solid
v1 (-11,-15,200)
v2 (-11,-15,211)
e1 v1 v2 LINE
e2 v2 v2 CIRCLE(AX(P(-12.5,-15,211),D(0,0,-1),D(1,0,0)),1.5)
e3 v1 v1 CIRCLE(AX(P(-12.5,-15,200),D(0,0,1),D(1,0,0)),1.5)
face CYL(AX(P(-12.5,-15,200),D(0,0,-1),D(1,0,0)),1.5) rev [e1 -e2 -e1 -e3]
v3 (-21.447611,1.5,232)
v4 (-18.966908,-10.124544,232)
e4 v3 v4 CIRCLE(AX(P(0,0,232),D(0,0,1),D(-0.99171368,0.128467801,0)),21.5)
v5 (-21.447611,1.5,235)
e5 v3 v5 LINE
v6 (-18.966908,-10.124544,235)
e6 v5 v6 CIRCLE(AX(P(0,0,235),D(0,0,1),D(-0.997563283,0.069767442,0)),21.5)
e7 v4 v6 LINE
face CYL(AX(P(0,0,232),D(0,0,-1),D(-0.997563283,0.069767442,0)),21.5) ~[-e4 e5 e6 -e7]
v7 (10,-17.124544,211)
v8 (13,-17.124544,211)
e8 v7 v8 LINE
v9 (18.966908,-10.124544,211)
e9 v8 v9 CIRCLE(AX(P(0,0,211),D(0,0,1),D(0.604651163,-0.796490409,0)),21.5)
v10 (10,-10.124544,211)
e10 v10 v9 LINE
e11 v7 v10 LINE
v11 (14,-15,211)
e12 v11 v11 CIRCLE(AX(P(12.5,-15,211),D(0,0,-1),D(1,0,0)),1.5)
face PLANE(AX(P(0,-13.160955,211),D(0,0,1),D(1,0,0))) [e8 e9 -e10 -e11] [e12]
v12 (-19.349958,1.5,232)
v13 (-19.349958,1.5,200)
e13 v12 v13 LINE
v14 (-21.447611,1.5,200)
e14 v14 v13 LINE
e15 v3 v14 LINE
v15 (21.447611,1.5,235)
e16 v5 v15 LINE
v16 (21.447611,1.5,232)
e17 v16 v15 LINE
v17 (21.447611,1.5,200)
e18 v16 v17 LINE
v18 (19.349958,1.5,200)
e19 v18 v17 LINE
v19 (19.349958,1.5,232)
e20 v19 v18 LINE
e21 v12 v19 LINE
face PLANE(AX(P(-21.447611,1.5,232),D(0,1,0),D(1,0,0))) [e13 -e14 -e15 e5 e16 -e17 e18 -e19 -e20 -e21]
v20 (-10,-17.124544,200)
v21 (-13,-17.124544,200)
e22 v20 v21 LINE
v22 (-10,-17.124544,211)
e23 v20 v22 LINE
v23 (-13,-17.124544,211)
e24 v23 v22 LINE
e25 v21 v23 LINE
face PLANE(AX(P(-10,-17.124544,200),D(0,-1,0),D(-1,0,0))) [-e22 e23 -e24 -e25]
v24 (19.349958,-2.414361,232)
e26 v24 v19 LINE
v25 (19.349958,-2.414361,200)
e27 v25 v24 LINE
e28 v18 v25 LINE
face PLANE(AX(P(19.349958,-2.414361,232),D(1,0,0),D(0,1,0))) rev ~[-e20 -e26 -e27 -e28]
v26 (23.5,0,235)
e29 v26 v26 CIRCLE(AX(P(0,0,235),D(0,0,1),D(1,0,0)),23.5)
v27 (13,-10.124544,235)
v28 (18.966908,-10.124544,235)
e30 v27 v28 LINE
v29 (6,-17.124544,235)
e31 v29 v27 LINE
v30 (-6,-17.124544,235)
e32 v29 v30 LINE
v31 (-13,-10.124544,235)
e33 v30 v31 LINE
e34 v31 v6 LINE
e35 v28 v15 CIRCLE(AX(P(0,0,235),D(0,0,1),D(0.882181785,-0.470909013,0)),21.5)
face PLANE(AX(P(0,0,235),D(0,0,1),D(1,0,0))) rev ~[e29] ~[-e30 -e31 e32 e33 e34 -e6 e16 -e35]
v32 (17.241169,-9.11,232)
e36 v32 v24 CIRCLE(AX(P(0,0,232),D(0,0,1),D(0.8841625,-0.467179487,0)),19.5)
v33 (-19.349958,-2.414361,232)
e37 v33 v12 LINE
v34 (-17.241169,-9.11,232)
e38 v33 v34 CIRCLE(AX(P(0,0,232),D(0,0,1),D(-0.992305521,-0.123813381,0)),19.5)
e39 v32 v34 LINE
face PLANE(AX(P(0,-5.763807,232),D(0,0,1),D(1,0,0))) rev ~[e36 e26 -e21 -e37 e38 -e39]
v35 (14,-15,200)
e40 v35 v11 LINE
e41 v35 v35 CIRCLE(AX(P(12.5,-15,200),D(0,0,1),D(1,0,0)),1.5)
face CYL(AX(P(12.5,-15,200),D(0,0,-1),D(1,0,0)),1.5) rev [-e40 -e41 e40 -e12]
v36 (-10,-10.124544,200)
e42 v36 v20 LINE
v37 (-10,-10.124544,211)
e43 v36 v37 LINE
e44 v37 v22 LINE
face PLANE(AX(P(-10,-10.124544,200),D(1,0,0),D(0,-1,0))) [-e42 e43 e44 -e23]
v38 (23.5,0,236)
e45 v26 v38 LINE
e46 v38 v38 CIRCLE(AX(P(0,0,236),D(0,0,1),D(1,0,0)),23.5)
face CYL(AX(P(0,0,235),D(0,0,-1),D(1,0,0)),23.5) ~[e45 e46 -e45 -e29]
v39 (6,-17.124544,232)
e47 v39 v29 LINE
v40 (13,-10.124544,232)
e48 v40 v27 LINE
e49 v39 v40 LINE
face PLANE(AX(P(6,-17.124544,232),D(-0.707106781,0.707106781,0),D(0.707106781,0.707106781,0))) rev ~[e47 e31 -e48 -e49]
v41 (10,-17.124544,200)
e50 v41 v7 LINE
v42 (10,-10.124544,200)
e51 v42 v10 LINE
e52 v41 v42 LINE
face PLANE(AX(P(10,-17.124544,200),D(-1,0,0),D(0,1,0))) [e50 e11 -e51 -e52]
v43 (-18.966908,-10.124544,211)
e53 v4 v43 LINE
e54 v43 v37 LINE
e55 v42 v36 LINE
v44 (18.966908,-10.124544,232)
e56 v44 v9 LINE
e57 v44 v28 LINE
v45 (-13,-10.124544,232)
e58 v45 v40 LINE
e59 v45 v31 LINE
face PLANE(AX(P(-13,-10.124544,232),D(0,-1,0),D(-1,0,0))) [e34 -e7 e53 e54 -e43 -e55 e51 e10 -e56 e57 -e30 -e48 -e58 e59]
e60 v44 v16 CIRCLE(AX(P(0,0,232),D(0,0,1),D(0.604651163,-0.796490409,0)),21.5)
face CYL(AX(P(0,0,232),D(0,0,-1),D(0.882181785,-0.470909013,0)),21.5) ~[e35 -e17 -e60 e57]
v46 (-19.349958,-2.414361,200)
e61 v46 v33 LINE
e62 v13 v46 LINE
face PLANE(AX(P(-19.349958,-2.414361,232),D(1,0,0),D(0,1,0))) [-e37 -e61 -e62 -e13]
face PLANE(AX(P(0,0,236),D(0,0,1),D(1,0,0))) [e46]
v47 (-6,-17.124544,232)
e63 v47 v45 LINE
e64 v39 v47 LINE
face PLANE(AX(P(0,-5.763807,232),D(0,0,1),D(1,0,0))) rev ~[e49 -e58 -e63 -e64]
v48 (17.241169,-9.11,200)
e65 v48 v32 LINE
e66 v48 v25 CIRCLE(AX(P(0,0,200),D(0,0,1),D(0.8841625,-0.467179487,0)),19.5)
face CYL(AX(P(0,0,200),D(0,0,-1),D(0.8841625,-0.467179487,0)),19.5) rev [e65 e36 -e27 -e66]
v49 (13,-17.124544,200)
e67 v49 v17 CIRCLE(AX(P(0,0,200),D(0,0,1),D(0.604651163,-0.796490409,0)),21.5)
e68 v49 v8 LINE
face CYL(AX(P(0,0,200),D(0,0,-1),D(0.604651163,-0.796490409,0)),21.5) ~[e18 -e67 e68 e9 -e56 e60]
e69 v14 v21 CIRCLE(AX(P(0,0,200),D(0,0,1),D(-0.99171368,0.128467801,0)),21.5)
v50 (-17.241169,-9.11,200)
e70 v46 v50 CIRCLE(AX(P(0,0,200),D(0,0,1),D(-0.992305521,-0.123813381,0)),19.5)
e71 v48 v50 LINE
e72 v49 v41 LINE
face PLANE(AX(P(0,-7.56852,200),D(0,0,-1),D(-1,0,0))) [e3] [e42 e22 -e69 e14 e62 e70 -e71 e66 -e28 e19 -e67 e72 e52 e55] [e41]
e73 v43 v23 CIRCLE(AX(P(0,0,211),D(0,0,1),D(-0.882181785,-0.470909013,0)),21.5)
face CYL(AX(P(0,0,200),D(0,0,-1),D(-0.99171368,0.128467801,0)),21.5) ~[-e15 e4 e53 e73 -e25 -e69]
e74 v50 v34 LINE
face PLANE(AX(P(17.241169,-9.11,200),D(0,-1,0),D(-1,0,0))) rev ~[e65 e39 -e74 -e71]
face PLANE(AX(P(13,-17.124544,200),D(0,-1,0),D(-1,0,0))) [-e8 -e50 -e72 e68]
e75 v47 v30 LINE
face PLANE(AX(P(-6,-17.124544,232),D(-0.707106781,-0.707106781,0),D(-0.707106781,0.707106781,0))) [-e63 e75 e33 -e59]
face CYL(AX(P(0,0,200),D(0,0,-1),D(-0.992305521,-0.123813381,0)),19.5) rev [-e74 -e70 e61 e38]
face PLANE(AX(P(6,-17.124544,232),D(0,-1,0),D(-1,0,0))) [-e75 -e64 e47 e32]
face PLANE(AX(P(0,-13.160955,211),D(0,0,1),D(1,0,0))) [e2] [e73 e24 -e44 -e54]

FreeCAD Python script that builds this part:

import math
import FreeCAD as App
import Part
import Sketcher
from FreeCAD import Vector
Q = App.Units.Quantity

doc = App.newDocument("Part")
params = doc.addObject("Spreadsheet::Sheet", "Params")
for row, (alias, value) in enumerate([
    ("sketch1_diameter", "3 mm"),
    ("sketch1_radius", "21.5 mm"),
    ("sketch1_radius2", "19.5 mm"),
    ("sketch1_width", "3 mm"),
    ("sketch1_width2", "20 mm"),
    ("pad1_length", "32 mm"),
    ("sketch2_radius", "21.5 mm"),
    ("sketch2_width", "26 mm"),
    ("pocket1_length", "21 mm"),
    ("sketch3_height", "8 mm"),
    ("pocket2_length", "50 mm"),
    ("sketch4_radius", "21.5 mm"),
    ("sketch4_width", "12 mm"),
    ("pad2_length", "3 mm"),
    ("sketch5_height", "8 mm"),
    ("pocket3_length", "32 mm"),
    ("sketch6_diameter", "47 mm"),
    ("pad3_length", "1 mm"),
], start=1):
    params.set(f"A{row}", alias)
    params.set(f"B{row}", "=" + value)
    params.setAlias(f"B{row}", alias)

body = doc.addObject("PartDesign::Body", "Body")

sketch1 = body.newObject("Sketcher::SketchObject", "Sketch")
sketch1.AttachmentSupport = (doc.getObject("XY_Plane"), [""])
sketch1.MapMode = "FlatFace"
sketch1.addGeometry([
    Part.LineSegment(Vector(-17, 2, 0), Vector(-21.321844, 2.762058, 0)),
    Part.ArcOfCircle(Part.Circle(Vector(0, 0, 0), Vector(0, 0, 1), 21.5), math.radians(172.618939), math.radians(232.796256)),
    Part.LineSegment(Vector(-13, -17.124544, 0), Vector(-10, -17.124544, 0)),
    Part.LineSegment(Vector(-10, -17.124544, 0), Vector(-10, -10.124544, 0)),
    Part.LineSegment(Vector(-10, -10.124544, 0), Vector(10, -10.124544, 0)),
    Part.LineSegment(Vector(10, -10.124544, 0), Vector(10, -17.124544, 0)),
    Part.LineSegment(Vector(10, -17.124544, 0), Vector(13, -17.124544, 0)),
    Part.ArcOfCircle(Part.Circle(Vector(0, 0, 0), Vector(0, 0, 1), 21.5), math.radians(-52.796256), math.radians(7.381061)),
    Part.LineSegment(Vector(21.321844, 2.762058, 0), Vector(17, 2, 0)),
    Part.LineSegment(Vector(17, 2, 0), Vector(17, 1, 0)),
    Part.LineSegment(Vector(17, 1, 0), Vector(19, 1, 0)),
    Part.LineSegment(Vector(19, 1, 0), Vector(19, -1, 0)),
    Part.LineSegment(Vector(19, -1, 0), Vector(17, -1, 0)),
    Part.LineSegment(Vector(17, -1, 0), Vector(17, -2, 0)),
    Part.LineSegment(Vector(17, -2, 0), Vector(19.349958, -2.414361, 0)),
    Part.ArcOfCircle(Part.Circle(Vector(0, 0, 0), Vector(0, 0, 1), 19.5), math.radians(-27.851366), math.radians(-7.112235)),
    Part.LineSegment(Vector(17.241169, -9.11, 0), Vector(-17.241169, -9.11, 0)),
    Part.ArcOfCircle(Part.Circle(Vector(0, 0, 0), Vector(0, 0, 1), 19.5), math.radians(-172.887765), math.radians(-152.148634)),
    Part.LineSegment(Vector(-19.349958, -2.414361, 0), Vector(-17, -2, 0)),
    Part.LineSegment(Vector(-17, -2, 0), Vector(-17, -1, 0)),
    Part.LineSegment(Vector(-17, -1, 0), Vector(-19, -1, 0)),
    Part.LineSegment(Vector(-19, -1, 0), Vector(-19, 1, 0)),
    Part.LineSegment(Vector(-19, 1, 0), Vector(-17, 1, 0)),
    Part.LineSegment(Vector(-17, 1, 0), Vector(-17, 2, 0)),
    Part.Circle(Vector(12.5, -15, 0), Vector(0, 0, 1), 1.5),
    Part.Circle(Vector(-12.5, -15, 0), Vector(0, 0, 1), 1.5),
], False)
sketch1.addConstraint([
    Sketcher.Constraint("Coincident", 0, 2, 1, 1),
    Sketcher.Constraint("Coincident", 1, 2, 2, 1),
    Sketcher.Constraint("Coincident", 2, 2, 3, 1),
    Sketcher.Constraint("Coincident", 3, 2, 4, 1),
    Sketcher.Constraint("Coincident", 4, 2, 5, 1),
    Sketcher.Constraint("Coincident", 5, 2, 6, 1),
    Sketcher.Constraint("Coincident", 6, 2, 7, 1),
    Sketcher.Constraint("Coincident", 7, 2, 8, 1),
    Sketcher.Constraint("Coincident", 8, 2, 9, 1),
    Sketcher.Constraint("Coincident", 9, 2, 10, 1),
    Sketcher.Constraint("Coincident", 10, 2, 11, 1),
    Sketcher.Constraint("Coincident", 11, 2, 12, 1),
    Sketcher.Constraint("Coincident", 12, 2, 13, 1),
    Sketcher.Constraint("Coincident", 13, 2, 14, 1),
    Sketcher.Constraint("Coincident", 14, 2, 15, 2),
    Sketcher.Constraint("Coincident", 15, 1, 16, 1),
    Sketcher.Constraint("Coincident", 16, 2, 17, 2),
    Sketcher.Constraint("Coincident", 17, 1, 18, 1),
    Sketcher.Constraint("Coincident", 18, 2, 19, 1),
    Sketcher.Constraint("Coincident", 19, 2, 20, 1),
    Sketcher.Constraint("Coincident", 20, 2, 21, 1),
    Sketcher.Constraint("Coincident", 21, 2, 22, 1),
    Sketcher.Constraint("Coincident", 22, 2, 23, 1),
    Sketcher.Constraint("Coincident", 23, 2, 0, 1),
    Sketcher.Constraint("Horizontal", 2),
    Sketcher.Constraint("Vertical", 3),
    Sketcher.Constraint("Horizontal", 4),
    Sketcher.Constraint("Vertical", 5),
    Sketcher.Constraint("Horizontal", 6),
    Sketcher.Constraint("Vertical", 9),
    Sketcher.Constraint("Horizontal", 10),
    Sketcher.Constraint("Vertical", 11),
    Sketcher.Constraint("Horizontal", 12),
    Sketcher.Constraint("Vertical", 13),
    Sketcher.Constraint("Horizontal", 16),
    Sketcher.Constraint("Vertical", 19),
    Sketcher.Constraint("Horizontal", 20),
    Sketcher.Constraint("Vertical", 21),
    Sketcher.Constraint("Horizontal", 22),
    Sketcher.Constraint("Vertical", 23),
    Sketcher.Constraint("Coincident", 1, 3, -1, 1),
    Sketcher.Constraint("Coincident", 7, 3, -1, 1),
    Sketcher.Constraint("Coincident", 15, 3, -1, 1),
    Sketcher.Constraint("Coincident", 17, 3, -1, 1),
    Sketcher.Constraint("Equal", 1, 7),
    Sketcher.Constraint("Equal", 15, 17),
    Sketcher.Constraint("Equal", 24, 25),
    Sketcher.Constraint("Symmetric", 8, 2, 18, 2, -1, 1),
    Sketcher.Constraint("Symmetric", 10, 2, 20, 2, -1, 1),
    Sketcher.Constraint("Symmetric", 12, 2, 22, 2, -1, 1),
    Sketcher.Constraint("Symmetric", 24, 3, 25, 3, -2),
    Sketcher.Constraint("Symmetric", 2, 2, 5, 2, -2),
    Sketcher.Constraint("Symmetric", 13, 2, 18, 2, -2),
    Sketcher.Constraint("Parallel", 0, 14),
    Sketcher.Constraint("Parallel", 8, 18),
    Sketcher.Constraint("Horizontal", 0, 2, 7, 2),
    Sketcher.Constraint("Horizontal", 14, 2, 17, 1),
    Sketcher.Constraint("Horizontal", 12, 2, 19, 2),
    Sketcher.Constraint("Equal", 22, 11),
    Sketcher.Constraint("Diameter", 24, 3.0),
    Sketcher.Constraint("Radius", 1, 21.5),
    Sketcher.Constraint("Radius", 15, 19.5),
    Sketcher.Constraint("DistanceX", 2, 1, 2, 2, 3.0),
    Sketcher.Constraint("DistanceX", 4, 1, 4, 2, 20.0),
    Sketcher.Constraint("DistanceX", 10, 1, 10, 2, 2.0),
    Sketcher.Constraint("DistanceY", 3, 1, 3, 2, 7.0),
    Sketcher.Constraint("DistanceY", 9, 2, 9, 1, 1.0),
    Sketcher.Constraint("Angle", 0, Q("170 deg")),
    Sketcher.Constraint("DistanceY", 24, 3, -1, 1, 15.0),
    Sketcher.Constraint("DistanceX", -1, 1, 8, 2, 17.0),
    Sketcher.Constraint("DistanceX", 25, 3, 24, 3, 25.0),
    Sketcher.Constraint("DistanceY", 15, 1, -1, 1, 9.11),
])
sketch1.setExpression("Constraints[59]", "Params.sketch1_diameter")
sketch1.setExpression("Constraints[60]", "Params.sketch1_radius")
sketch1.setExpression("Constraints[61]", "Params.sketch1_radius2")
sketch1.setExpression("Constraints[62]", "Params.sketch1_width")
sketch1.setExpression("Constraints[63]", "Params.sketch1_width2")
pad1 = body.newObject("PartDesign::Pad", "Pad")
pad1.Profile = sketch1
pad1.setExpression("Length", "Params.pad1_length")

sketch2 = body.newObject("Sketcher::SketchObject", "Sketch001")
sketch2.AttachmentSupport = (doc.getObject("XY_Plane"), [""])
sketch2.MapMode = "FlatFace"
sketch2.AttachmentOffset = App.Placement(Vector(0, 0, 32), App.Rotation())
sketch2.addGeometry([
    Part.ArcOfCircle(Part.Circle(Vector(0, 0, 0), Vector(0, 0, 1), 21.5), math.radians(-151.906681), math.radians(-127.203744)),
    Part.LineSegment(Vector(-13, -17.124544, 0), Vector(13, -17.124544, 0)),
    Part.ArcOfCircle(Part.Circle(Vector(0, 0, 0), Vector(0, 0, 1), 21.5), math.radians(-52.796256), math.radians(-28.093319)),
    Part.LineSegment(Vector(18.966908, -10.124544, 0), Vector(-18.966908, -10.124544, 0)),
], False)
sketch2.addConstraint([
    Sketcher.Constraint("Coincident", 0, 2, 1, 1),
    Sketcher.Constraint("Coincident", 1, 2, 2, 1),
    Sketcher.Constraint("Coincident", 2, 2, 3, 1),
    Sketcher.Constraint("Coincident", 3, 2, 0, 1),
    Sketcher.Constraint("Horizontal", 1),
    Sketcher.Constraint("Horizontal", 3),
    Sketcher.Constraint("Coincident", 0, 3, -1, 1),
    Sketcher.Constraint("Coincident", 2, 3, -1, 1),
    Sketcher.Constraint("Equal", 0, 2),
    Sketcher.Constraint("Radius", 0, 21.5),
    Sketcher.Constraint("DistanceX", 1, 1, 1, 2, 26.0),
    Sketcher.Constraint("DistanceY", 1, 2, 2, 2, 7.0),
])
sketch2.setExpression("Constraints[9]", "Params.sketch2_radius")
sketch2.setExpression("Constraints[10]", "Params.sketch2_width")
pocket1 = body.newObject("PartDesign::Pocket", "Pocket")
pocket1.Profile = sketch2
pocket1.setExpression("Length", "Params.pocket1_length")

sketch3 = body.newObject("Sketcher::SketchObject", "Sketch002")
sketch3.AttachmentSupport = (doc.getObject("XY_Plane"), [""])
sketch3.MapMode = "FlatFace"
sketch3.AttachmentOffset = App.Placement(Vector(0, 0, 32), App.Rotation())
sketch3.addGeometry([
    Part.LineSegment(Vector(-19.349958, 5.585639, 0), Vector(-19.349958, -2.414361, 0)),
    Part.LineSegment(Vector(-19.349958, -2.414361, 0), Vector(19.349958, -2.414361, 0)),
    Part.LineSegment(Vector(19.349958, -2.414361, 0), Vector(19.349958, 5.585639, 0)),
    Part.LineSegment(Vector(19.349958, 5.585639, 0), Vector(-19.349958, 5.585639, 0)),
], False)
sketch3.addConstraint([
    Sketcher.Constraint("Coincident", 0, 2, 1, 1),
    Sketcher.Constraint("Coincident", 1, 2, 2, 1),
    Sketcher.Constraint("Coincident", 2, 2, 3, 1),
    Sketcher.Constraint("Coincident", 3, 2, 0, 1),
    Sketcher.Constraint("Vertical", 0),
    Sketcher.Constraint("Horizontal", 1),
    Sketcher.Constraint("Vertical", 2),
    Sketcher.Constraint("Horizontal", 3),
    Sketcher.Constraint("DistanceY", 0, 2, 0, 1, 8.0),
    Sketcher.Constraint("DistanceX", 1, 1, 1, 2, 38.699915),
    Sketcher.Constraint("DistanceY", 0, 2, -1, 1, 2.414361),
    Sketcher.Constraint("DistanceX", 0, 2, -1, 1, 19.349958),
])
sketch3.setExpression("Constraints[8]", "Params.sketch3_height")
pocket2 = body.newObject("PartDesign::Pocket", "Pocket001")
pocket2.Profile = sketch3
pocket2.setExpression("Length", "Params.pocket2_length")

sketch4 = body.newObject("Sketcher::SketchObject", "Sketch003")
sketch4.AttachmentSupport = (doc.getObject("XY_Plane"), [""])
sketch4.MapMode = "FlatFace"
sketch4.AttachmentOffset = App.Placement(Vector(0, 0, 32), App.Rotation())
sketch4.addGeometry([
    Part.ArcOfCircle(Part.Circle(Vector(0, 0, 0), Vector(0, 0, 1), 21.5), math.radians(175.99937), math.radians(208.093319)),
    Part.LineSegment(Vector(-18.966908, -10.124544, 0), Vector(-13, -10.124544, 0)),
    Part.LineSegment(Vector(-13, -10.124544, 0), Vector(-6, -17.124544, 0)),
    Part.LineSegment(Vector(-6, -17.124544, 0), Vector(6, -17.124544, 0)),
    Part.LineSegment(Vector(6, -17.124544, 0), Vector(13, -10.124544, 0)),
    Part.LineSegment(Vector(13, -10.124544, 0), Vector(18.966908, -10.124544, 0)),
    Part.ArcOfCircle(Part.Circle(Vector(0, 0, 0), Vector(0, 0, 1), 21.5), math.radians(-28.093319), math.radians(4.00063)),
    Part.LineSegment(Vector(21.447611, 1.5, 0), Vector(-21.447611, 1.5, 0)),
], False)
sketch4.addConstraint([
    Sketcher.Constraint("Coincident", 0, 2, 1, 1),
    Sketcher.Constraint("Coincident", 1, 2, 2, 1),
    Sketcher.Constraint("Coincident", 2, 2, 3, 1),
    Sketcher.Constraint("Coincident", 3, 2, 4, 1),
    Sketcher.Constraint("Coincident", 4, 2, 5, 1),
    Sketcher.Constraint("Coincident", 5, 2, 6, 1),
    Sketcher.Constraint("Coincident", 6, 2, 7, 1),
    Sketcher.Constraint("Coincident", 7, 2, 0, 1),
    Sketcher.Constraint("Horizontal", 1),
    Sketcher.Constraint("Horizontal", 3),
    Sketcher.Constraint("Horizontal", 5),
    Sketcher.Constraint("Horizontal", 7),
    Sketcher.Constraint("Coincident", 0, 3, -1, 1),
    Sketcher.Constraint("Coincident", 6, 3, -1, 1),
    Sketcher.Constraint("Equal", 0, 6),
    Sketcher.Constraint("Symmetric", 1, 2, 4, 2, -2),
    Sketcher.Constraint("Perpendicular", 2, 4),
    Sketcher.Constraint("Equal", 2, 4),
    Sketcher.Constraint("Radius", 0, 21.5),
    Sketcher.Constraint("DistanceX", 3, 1, 3, 2, 12.0),
    Sketcher.Constraint("DistanceX", 1, 2, -1, 1, 13.0),
    Sketcher.Constraint("DistanceY", -1, 1, 6, 2, 1.5),
    Sketcher.Constraint("DistanceX", 1, 1, 1, 2, 5.966908),
])
sketch4.setExpression("Constraints[18]", "Params.sketch4_radius")
sketch4.setExpression("Constraints[19]", "Params.sketch4_width")
pad2 = body.newObject("PartDesign::Pad", "Pad001")
pad2.Profile = sketch4
pad2.setExpression("Length", "Params.pad2_length")

sketch5 = body.newObject("Sketcher::SketchObject", "Sketch004")
sketch5.AttachmentSupport = (doc.getObject("XY_Plane"), [""])
sketch5.MapMode = "FlatFace"
sketch5.AttachmentOffset = App.Placement(Vector(0, 0, 32), App.Rotation())
sketch5.addGeometry([
    Part.LineSegment(Vector(-21.447611, 9.5, 0), Vector(-21.447611, 1.5, 0)),
    Part.LineSegment(Vector(-21.447611, 1.5, 0), Vector(21.447611, 1.5, 0)),
    Part.LineSegment(Vector(21.447611, 1.5, 0), Vector(21.447611, 9.5, 0)),
    Part.LineSegment(Vector(21.447611, 9.5, 0), Vector(-21.447611, 9.5, 0)),
], False)
sketch5.addConstraint([
    Sketcher.Constraint("Coincident", 0, 2, 1, 1),
    Sketcher.Constraint("Coincident", 1, 2, 2, 1),
    Sketcher.Constraint("Coincident", 2, 2, 3, 1),
    Sketcher.Constraint("Coincident", 3, 2, 0, 1),
    Sketcher.Constraint("Vertical", 0),
    Sketcher.Constraint("Horizontal", 1),
    Sketcher.Constraint("Vertical", 2),
    Sketcher.Constraint("Horizontal", 3),
    Sketcher.Constraint("DistanceY", 0, 2, 0, 1, 8.0),
    Sketcher.Constraint("DistanceY", -1, 1, 0, 2, 1.5),
    Sketcher.Constraint("DistanceX", 1, 1, 1, 2, 42.895221),
    Sketcher.Constraint("DistanceX", 0, 2, -1, 1, 21.447611),
])
sketch5.setExpression("Constraints[8]", "Params.sketch5_height")
pocket3 = body.newObject("PartDesign::Pocket", "Pocket002")
pocket3.Profile = sketch5
pocket3.setExpression("Length", "Params.pocket3_length")

sketch6 = body.newObject("Sketcher::SketchObject", "Sketch005")
sketch6.AttachmentSupport = (doc.getObject("XY_Plane"), [""])
sketch6.MapMode = "FlatFace"
sketch6.AttachmentOffset = App.Placement(Vector(0, 0, 35), App.Rotation())
sketch6.addGeometry(Part.Circle(Vector(0, 0, 0), Vector(0, 0, 1), 23.5), False)
sketch6.addConstraint([
    Sketcher.Constraint("Coincident", 0, 3, -1, 1),
    Sketcher.Constraint("Diameter", 0, 47.0),
])
sketch6.setExpression("Constraints[1]", "Params.sketch6_diameter")
pad3 = body.newObject("PartDesign::Pad", "Pad002")
pad3.Profile = sketch6
pad3.setExpression("Length", "Params.pad3_length")
body2 = doc.addObject("PartDesign::Body", "Body001")
doc.recompute()

body.Placement = App.Placement(Vector(0, 0, 200), App.Rotation(Vector(0, 0, 1), 0))
boolean = body2.newObject("PartDesign::Boolean", "Boolean")
boolean.Type = "Fuse"
boolean.addObjects([body])

doc.recompute()
